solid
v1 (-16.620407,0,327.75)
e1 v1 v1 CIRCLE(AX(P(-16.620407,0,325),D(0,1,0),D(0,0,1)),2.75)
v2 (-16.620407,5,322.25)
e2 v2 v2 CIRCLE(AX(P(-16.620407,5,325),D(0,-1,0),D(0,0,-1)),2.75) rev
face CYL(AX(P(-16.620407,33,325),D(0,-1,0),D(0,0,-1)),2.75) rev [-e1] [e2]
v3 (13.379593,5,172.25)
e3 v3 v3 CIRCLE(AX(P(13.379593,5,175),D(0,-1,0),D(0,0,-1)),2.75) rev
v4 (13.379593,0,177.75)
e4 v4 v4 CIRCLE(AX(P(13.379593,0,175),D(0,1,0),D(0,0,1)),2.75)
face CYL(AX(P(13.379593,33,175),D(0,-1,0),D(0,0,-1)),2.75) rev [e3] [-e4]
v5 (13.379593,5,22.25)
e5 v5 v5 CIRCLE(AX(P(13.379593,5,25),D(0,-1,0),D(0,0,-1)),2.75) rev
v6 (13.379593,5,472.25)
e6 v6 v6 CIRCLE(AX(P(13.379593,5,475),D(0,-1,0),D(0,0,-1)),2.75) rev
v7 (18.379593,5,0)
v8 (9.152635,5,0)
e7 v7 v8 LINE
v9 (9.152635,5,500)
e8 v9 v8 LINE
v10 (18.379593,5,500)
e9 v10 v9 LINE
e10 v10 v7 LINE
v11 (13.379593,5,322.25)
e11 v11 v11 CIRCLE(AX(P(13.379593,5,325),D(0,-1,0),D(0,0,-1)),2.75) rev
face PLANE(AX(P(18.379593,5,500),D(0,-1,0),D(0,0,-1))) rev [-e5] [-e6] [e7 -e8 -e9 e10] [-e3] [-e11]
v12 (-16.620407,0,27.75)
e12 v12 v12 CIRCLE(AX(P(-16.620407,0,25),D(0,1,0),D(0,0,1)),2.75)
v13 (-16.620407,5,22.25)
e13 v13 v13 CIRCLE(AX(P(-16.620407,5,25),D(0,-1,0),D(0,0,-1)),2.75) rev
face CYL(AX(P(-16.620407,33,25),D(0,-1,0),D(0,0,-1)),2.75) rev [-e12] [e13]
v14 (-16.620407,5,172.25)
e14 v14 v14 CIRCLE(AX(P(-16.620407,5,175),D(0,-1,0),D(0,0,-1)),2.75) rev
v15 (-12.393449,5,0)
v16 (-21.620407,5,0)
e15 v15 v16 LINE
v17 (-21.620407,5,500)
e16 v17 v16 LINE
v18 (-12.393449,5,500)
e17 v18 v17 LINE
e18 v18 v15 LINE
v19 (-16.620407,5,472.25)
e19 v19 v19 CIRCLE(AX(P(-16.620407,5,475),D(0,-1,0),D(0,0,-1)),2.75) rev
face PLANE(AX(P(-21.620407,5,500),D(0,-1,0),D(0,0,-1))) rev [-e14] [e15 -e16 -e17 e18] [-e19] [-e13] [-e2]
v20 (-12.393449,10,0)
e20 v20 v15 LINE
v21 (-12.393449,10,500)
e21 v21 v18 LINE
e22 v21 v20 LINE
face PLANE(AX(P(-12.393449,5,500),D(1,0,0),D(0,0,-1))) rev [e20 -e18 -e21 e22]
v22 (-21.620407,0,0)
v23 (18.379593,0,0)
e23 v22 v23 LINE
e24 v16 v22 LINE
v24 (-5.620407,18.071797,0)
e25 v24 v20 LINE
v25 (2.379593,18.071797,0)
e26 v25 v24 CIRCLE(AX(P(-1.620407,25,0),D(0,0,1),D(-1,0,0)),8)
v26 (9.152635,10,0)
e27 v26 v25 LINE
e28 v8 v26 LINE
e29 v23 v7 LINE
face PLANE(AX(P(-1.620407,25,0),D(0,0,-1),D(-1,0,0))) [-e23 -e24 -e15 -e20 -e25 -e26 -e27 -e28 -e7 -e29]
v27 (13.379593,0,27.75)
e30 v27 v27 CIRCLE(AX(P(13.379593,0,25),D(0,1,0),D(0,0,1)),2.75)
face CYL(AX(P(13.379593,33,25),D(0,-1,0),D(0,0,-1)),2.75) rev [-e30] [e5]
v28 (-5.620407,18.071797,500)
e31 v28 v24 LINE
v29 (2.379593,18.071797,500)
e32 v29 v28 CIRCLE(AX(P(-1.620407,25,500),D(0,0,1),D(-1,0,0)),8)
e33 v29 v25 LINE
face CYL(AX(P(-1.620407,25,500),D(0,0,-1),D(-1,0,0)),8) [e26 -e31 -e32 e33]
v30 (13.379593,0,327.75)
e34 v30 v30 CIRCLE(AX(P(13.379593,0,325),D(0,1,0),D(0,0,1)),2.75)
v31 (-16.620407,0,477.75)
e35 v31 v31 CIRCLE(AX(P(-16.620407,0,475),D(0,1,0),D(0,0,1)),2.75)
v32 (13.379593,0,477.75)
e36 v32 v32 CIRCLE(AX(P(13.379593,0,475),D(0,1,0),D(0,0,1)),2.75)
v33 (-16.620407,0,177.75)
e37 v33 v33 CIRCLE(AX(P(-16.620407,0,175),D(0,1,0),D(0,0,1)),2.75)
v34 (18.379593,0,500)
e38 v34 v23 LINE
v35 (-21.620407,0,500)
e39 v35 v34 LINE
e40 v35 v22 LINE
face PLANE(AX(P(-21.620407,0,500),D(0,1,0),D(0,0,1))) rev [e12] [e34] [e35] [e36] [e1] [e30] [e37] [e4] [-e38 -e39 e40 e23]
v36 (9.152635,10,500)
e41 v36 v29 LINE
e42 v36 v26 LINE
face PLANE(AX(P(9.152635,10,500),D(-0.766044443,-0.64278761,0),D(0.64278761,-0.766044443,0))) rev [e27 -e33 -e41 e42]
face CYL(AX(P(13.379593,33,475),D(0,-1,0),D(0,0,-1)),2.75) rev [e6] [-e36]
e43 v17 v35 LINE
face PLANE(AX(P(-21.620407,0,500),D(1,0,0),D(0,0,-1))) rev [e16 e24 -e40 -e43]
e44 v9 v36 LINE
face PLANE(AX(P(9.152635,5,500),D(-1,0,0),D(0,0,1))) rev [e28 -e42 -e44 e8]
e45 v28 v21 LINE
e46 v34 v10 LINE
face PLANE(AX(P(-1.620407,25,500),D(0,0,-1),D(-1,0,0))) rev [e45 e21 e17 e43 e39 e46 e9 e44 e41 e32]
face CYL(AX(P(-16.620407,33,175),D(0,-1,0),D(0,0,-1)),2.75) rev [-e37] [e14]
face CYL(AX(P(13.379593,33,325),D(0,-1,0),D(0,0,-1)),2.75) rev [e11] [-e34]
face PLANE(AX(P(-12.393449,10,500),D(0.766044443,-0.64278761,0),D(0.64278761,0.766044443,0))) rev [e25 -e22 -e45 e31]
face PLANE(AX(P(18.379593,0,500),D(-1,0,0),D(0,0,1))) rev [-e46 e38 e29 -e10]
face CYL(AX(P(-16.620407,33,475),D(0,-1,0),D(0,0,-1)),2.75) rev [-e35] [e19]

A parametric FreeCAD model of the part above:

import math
import FreeCAD as App
import Part
import Sketcher
Q = App.Units.Quantity

doc = App.newDocument("Part")
body = doc.addObject("PartDesign::Body", "Body")

# Sketch on XY plane
sketch1 = body.newObject("Sketcher::SketchObject", "Sketch")
sketch1.AttachmentSupport = (doc.getObject("XY_Plane"), [""])
sketch1.MapMode = "FlatFace"
sketch1.addGeometry(Part.LineSegment(App.Vector(-22, 0, 0), App.Vector(18, 0, 0)), False)
sketch1.addGeometry(Part.LineSegment(App.Vector(18, 0, 0), App.Vector(18, 5, 0)), False)
sketch1.addGeometry(Part.LineSegment(App.Vector(18, 5, 0), App.Vector(9, 5, 0)), False)
sketch1.addGeometry(Part.LineSegment(App.Vector(9, 5, 0), App.Vector(9, 10, 0)), False)
sketch1.addGeometry(Part.LineSegment(App.Vector(9, 10, 0), App.Vector(2, 18, 0)), False)
sketch1.addGeometry(Part.ArcOfCircle(Part.Circle(App.Vector(-2, 25, 0), App.Vector(0, 0, 1), 8), math.radians(-60), math.radians(240)), False)
sketch1.addGeometry(Part.LineSegment(App.Vector(-6, 18, 0), App.Vector(-12, 10, 0)), False)
sketch1.addGeometry(Part.LineSegment(App.Vector(-12, 10, 0), App.Vector(-12, 5, 0)), False)
sketch1.addGeometry(Part.LineSegment(App.Vector(-12, 5, 0), App.Vector(-22, 5, 0)), False)
sketch1.addGeometry(Part.LineSegment(App.Vector(-22, 5, 0), App.Vector(-22, 0, 0)), False)
sketch1.addConstraint(Sketcher.Constraint("Coincident", 0, 2, 1, 1))
sketch1.addConstraint(Sketcher.Constraint("Coincident", 1, 2, 2, 1))
sketch1.addConstraint(Sketcher.Constraint("Coincident", 2, 2, 3, 1))
sketch1.addConstraint(Sketcher.Constraint("Coincident", 3, 2, 4, 1))
sketch1.addConstraint(Sketcher.Constraint("Coincident", 4, 2, 5, 1))
sketch1.addConstraint(Sketcher.Constraint("Coincident", 5, 2, 6, 1))
sketch1.addConstraint(Sketcher.Constraint("Coincident", 6, 2, 7, 1))
sketch1.addConstraint(Sketcher.Constraint("Coincident", 7, 2, 8, 1))
sketch1.addConstraint(Sketcher.Constraint("Coincident", 8, 2, 9, 1))
sketch1.addConstraint(Sketcher.Constraint("Coincident", 9, 2, 0, 1))
sketch1.addConstraint(Sketcher.Constraint("Horizontal", 0))
sketch1.addConstraint(Sketcher.Constraint("Vertical", 1))
sketch1.addConstraint(Sketcher.Constraint("Horizontal", 2))
sketch1.addConstraint(Sketcher.Constraint("Vertical", 3))
sketch1.addConstraint(Sketcher.Constraint("Vertical", 7))
sketch1.addConstraint(Sketcher.Constraint("Horizontal", 8))
sketch1.addConstraint(Sketcher.Constraint("Vertical", 9))
sketch1.addConstraint(Sketcher.Constraint("PointOnObject", 0, 2, -1))
sketch1.addConstraint(Sketcher.Constraint("Horizontal", 4, 2, 5, 2))
sketch1.addConstraint(Sketcher.Constraint("Horizontal", 3, 2, 6, 2))
sketch1.addConstraint(Sketcher.Constraint("Horizontal", 2, 2, 7, 2))
sketch1.addConstraint(Sketcher.Constraint("Equal", 2, 8))
sketch1.addConstraint(Sketcher.Constraint("Equal", 1, 3))
sketch1.addConstraint(Sketcher.Constraint("Equal", 4, 6))
sketch1.addConstraint(Sketcher.Constraint("Radius", 5, Q("8 mm")))
sketch1.addConstraint(Sketcher.Constraint("DistanceX", 0, 1, 0, 2, Q("40 mm")))
sketch1.addConstraint(Sketcher.Constraint("DistanceY", 1, 1, 1, 2, Q("5 mm")))
sketch1.addConstraint(Sketcher.Constraint("Angle", 4, Q("130 deg")))
sketch1.addConstraint(Sketcher.Constraint("DistanceY", -1, 1, 5, 3, Q("25 mm")))
sketch1.addConstraint(Sketcher.Constraint("DistanceX", 5, 3, 4, 2, Q("4 mm")))
sketch1.addConstraint(Sketcher.Constraint("DistanceX", 6, 2, -1, 1, Q("12.393449 mm")))
pad1 = body.newObject("PartDesign::Pad", "Pad")
pad1.Profile = sketch1
pad1.Length = 500

# Sketch on XZ plane
sketch2 = body.newObject("Sketcher::SketchObject", "Sketch001")
sketch2.AttachmentSupport = (doc.getObject("XZ_Plane"), [""])
sketch2.MapMode = "FlatFace"
sketch2.addGeometry(Part.Circle(App.Vector(-16.6, 475, 0), App.Vector(0, 0, 1), 2.8), False)
sketch2.addGeometry(Part.Circle(App.Vector(13.4, 475, 0), App.Vector(0, 0, 1), 2.8), False)
sketch2.addGeometry(Part.Circle(App.Vector(-16.6, 325, 0), App.Vector(0, 0, 1), 2.8), False)
sketch2.addGeometry(Part.Circle(App.Vector(13.4, 325, 0), App.Vector(0, 0, 1), 2.8), False)
sketch2.addGeometry(Part.Circle(App.Vector(-16.6, 175, 0), App.Vector(0, 0, 1), 2.8), False)
sketch2.addGeometry(Part.Circle(App.Vector(13.4, 175, 0), App.Vector(0, 0, 1), 2.8), False)
sketch2.addGeometry(Part.Circle(App.Vector(-16.6, 25, 0), App.Vector(0, 0, 1), 2.8), False)
sketch2.addGeometry(Part.Circle(App.Vector(13.4, 25, 0), App.Vector(0, 0, 1), 2.8), False)
sketch2.addConstraint(Sketcher.Constraint("Equal", 0, 1))
sketch2.addConstraint(Sketcher.Constraint("Equal", 1, 2))
sketch2.addConstraint(Sketcher.Constraint("Equal", 2, 3))
sketch2.addConstraint(Sketcher.Constraint("Equal", 3, 4))
sketch2.addConstraint(Sketcher.Constraint("Equal", 4, 5))
sketch2.addConstraint(Sketcher.Constraint("Equal", 5, 6))
sketch2.addConstraint(Sketcher.Constraint("Equal", 6, 7))
sketch2.addConstraint(Sketcher.Constraint("Horizontal", 0, 3, 1, 3))
sketch2.addConstraint(Sketcher.Constraint("Horizontal", 2, 3, 3, 3))
sketch2.addConstraint(Sketcher.Constraint("Horizontal", 4, 3, 5, 3))
sketch2.addConstraint(Sketcher.Constraint("Horizontal", 6, 3, 7, 3))
sketch2.addConstraint(Sketcher.Constraint("Vertical", 0, 3, 2, 3))
sketch2.addConstraint(Sketcher.Constraint("Vertical", 1, 3, 3, 3))
sketch2.addConstraint(Sketcher.Constraint("Vertical", 2, 3, 4, 3))
sketch2.addConstraint(Sketcher.Constraint("Vertical", 3, 3, 5, 3))
sketch2.addConstraint(Sketcher.Constraint("Vertical", 4, 3, 6, 3))
sketch2.addConstraint(Sketcher.Constraint("Vertical", 5, 3, 7, 3))
sketch2.addConstraint(Sketcher.Constraint("Diameter", 0, Q("5.5 mm")))
sketch2.addConstraint(Sketcher.Constraint("DistanceY", -1, 1, 0, 3, Q("475 mm")))
sketch2.addConstraint(Sketcher.Constraint("DistanceY", -1, 1, 2, 3, Q("325 mm")))
sketch2.addConstraint(Sketcher.Constraint("DistanceY", -1, 1, 4, 3, Q("175 mm")))
sketch2.addConstraint(Sketcher.Constraint("DistanceY", -1, 1, 6, 3, Q("25 mm")))
sketch2.addConstraint(Sketcher.Constraint("DistanceX", 0, 3, 1, 3, Q("30 mm")))
sketch2.addConstraint(Sketcher.Constraint("DistanceX", 0, 3, -1, 1, Q("16.620407 mm")))
pocket1 = body.newObject("PartDesign::Pocket", "Pocket")
pocket1.Profile = sketch2
pocket1.Type = "ThroughAll"

doc.recompute()
